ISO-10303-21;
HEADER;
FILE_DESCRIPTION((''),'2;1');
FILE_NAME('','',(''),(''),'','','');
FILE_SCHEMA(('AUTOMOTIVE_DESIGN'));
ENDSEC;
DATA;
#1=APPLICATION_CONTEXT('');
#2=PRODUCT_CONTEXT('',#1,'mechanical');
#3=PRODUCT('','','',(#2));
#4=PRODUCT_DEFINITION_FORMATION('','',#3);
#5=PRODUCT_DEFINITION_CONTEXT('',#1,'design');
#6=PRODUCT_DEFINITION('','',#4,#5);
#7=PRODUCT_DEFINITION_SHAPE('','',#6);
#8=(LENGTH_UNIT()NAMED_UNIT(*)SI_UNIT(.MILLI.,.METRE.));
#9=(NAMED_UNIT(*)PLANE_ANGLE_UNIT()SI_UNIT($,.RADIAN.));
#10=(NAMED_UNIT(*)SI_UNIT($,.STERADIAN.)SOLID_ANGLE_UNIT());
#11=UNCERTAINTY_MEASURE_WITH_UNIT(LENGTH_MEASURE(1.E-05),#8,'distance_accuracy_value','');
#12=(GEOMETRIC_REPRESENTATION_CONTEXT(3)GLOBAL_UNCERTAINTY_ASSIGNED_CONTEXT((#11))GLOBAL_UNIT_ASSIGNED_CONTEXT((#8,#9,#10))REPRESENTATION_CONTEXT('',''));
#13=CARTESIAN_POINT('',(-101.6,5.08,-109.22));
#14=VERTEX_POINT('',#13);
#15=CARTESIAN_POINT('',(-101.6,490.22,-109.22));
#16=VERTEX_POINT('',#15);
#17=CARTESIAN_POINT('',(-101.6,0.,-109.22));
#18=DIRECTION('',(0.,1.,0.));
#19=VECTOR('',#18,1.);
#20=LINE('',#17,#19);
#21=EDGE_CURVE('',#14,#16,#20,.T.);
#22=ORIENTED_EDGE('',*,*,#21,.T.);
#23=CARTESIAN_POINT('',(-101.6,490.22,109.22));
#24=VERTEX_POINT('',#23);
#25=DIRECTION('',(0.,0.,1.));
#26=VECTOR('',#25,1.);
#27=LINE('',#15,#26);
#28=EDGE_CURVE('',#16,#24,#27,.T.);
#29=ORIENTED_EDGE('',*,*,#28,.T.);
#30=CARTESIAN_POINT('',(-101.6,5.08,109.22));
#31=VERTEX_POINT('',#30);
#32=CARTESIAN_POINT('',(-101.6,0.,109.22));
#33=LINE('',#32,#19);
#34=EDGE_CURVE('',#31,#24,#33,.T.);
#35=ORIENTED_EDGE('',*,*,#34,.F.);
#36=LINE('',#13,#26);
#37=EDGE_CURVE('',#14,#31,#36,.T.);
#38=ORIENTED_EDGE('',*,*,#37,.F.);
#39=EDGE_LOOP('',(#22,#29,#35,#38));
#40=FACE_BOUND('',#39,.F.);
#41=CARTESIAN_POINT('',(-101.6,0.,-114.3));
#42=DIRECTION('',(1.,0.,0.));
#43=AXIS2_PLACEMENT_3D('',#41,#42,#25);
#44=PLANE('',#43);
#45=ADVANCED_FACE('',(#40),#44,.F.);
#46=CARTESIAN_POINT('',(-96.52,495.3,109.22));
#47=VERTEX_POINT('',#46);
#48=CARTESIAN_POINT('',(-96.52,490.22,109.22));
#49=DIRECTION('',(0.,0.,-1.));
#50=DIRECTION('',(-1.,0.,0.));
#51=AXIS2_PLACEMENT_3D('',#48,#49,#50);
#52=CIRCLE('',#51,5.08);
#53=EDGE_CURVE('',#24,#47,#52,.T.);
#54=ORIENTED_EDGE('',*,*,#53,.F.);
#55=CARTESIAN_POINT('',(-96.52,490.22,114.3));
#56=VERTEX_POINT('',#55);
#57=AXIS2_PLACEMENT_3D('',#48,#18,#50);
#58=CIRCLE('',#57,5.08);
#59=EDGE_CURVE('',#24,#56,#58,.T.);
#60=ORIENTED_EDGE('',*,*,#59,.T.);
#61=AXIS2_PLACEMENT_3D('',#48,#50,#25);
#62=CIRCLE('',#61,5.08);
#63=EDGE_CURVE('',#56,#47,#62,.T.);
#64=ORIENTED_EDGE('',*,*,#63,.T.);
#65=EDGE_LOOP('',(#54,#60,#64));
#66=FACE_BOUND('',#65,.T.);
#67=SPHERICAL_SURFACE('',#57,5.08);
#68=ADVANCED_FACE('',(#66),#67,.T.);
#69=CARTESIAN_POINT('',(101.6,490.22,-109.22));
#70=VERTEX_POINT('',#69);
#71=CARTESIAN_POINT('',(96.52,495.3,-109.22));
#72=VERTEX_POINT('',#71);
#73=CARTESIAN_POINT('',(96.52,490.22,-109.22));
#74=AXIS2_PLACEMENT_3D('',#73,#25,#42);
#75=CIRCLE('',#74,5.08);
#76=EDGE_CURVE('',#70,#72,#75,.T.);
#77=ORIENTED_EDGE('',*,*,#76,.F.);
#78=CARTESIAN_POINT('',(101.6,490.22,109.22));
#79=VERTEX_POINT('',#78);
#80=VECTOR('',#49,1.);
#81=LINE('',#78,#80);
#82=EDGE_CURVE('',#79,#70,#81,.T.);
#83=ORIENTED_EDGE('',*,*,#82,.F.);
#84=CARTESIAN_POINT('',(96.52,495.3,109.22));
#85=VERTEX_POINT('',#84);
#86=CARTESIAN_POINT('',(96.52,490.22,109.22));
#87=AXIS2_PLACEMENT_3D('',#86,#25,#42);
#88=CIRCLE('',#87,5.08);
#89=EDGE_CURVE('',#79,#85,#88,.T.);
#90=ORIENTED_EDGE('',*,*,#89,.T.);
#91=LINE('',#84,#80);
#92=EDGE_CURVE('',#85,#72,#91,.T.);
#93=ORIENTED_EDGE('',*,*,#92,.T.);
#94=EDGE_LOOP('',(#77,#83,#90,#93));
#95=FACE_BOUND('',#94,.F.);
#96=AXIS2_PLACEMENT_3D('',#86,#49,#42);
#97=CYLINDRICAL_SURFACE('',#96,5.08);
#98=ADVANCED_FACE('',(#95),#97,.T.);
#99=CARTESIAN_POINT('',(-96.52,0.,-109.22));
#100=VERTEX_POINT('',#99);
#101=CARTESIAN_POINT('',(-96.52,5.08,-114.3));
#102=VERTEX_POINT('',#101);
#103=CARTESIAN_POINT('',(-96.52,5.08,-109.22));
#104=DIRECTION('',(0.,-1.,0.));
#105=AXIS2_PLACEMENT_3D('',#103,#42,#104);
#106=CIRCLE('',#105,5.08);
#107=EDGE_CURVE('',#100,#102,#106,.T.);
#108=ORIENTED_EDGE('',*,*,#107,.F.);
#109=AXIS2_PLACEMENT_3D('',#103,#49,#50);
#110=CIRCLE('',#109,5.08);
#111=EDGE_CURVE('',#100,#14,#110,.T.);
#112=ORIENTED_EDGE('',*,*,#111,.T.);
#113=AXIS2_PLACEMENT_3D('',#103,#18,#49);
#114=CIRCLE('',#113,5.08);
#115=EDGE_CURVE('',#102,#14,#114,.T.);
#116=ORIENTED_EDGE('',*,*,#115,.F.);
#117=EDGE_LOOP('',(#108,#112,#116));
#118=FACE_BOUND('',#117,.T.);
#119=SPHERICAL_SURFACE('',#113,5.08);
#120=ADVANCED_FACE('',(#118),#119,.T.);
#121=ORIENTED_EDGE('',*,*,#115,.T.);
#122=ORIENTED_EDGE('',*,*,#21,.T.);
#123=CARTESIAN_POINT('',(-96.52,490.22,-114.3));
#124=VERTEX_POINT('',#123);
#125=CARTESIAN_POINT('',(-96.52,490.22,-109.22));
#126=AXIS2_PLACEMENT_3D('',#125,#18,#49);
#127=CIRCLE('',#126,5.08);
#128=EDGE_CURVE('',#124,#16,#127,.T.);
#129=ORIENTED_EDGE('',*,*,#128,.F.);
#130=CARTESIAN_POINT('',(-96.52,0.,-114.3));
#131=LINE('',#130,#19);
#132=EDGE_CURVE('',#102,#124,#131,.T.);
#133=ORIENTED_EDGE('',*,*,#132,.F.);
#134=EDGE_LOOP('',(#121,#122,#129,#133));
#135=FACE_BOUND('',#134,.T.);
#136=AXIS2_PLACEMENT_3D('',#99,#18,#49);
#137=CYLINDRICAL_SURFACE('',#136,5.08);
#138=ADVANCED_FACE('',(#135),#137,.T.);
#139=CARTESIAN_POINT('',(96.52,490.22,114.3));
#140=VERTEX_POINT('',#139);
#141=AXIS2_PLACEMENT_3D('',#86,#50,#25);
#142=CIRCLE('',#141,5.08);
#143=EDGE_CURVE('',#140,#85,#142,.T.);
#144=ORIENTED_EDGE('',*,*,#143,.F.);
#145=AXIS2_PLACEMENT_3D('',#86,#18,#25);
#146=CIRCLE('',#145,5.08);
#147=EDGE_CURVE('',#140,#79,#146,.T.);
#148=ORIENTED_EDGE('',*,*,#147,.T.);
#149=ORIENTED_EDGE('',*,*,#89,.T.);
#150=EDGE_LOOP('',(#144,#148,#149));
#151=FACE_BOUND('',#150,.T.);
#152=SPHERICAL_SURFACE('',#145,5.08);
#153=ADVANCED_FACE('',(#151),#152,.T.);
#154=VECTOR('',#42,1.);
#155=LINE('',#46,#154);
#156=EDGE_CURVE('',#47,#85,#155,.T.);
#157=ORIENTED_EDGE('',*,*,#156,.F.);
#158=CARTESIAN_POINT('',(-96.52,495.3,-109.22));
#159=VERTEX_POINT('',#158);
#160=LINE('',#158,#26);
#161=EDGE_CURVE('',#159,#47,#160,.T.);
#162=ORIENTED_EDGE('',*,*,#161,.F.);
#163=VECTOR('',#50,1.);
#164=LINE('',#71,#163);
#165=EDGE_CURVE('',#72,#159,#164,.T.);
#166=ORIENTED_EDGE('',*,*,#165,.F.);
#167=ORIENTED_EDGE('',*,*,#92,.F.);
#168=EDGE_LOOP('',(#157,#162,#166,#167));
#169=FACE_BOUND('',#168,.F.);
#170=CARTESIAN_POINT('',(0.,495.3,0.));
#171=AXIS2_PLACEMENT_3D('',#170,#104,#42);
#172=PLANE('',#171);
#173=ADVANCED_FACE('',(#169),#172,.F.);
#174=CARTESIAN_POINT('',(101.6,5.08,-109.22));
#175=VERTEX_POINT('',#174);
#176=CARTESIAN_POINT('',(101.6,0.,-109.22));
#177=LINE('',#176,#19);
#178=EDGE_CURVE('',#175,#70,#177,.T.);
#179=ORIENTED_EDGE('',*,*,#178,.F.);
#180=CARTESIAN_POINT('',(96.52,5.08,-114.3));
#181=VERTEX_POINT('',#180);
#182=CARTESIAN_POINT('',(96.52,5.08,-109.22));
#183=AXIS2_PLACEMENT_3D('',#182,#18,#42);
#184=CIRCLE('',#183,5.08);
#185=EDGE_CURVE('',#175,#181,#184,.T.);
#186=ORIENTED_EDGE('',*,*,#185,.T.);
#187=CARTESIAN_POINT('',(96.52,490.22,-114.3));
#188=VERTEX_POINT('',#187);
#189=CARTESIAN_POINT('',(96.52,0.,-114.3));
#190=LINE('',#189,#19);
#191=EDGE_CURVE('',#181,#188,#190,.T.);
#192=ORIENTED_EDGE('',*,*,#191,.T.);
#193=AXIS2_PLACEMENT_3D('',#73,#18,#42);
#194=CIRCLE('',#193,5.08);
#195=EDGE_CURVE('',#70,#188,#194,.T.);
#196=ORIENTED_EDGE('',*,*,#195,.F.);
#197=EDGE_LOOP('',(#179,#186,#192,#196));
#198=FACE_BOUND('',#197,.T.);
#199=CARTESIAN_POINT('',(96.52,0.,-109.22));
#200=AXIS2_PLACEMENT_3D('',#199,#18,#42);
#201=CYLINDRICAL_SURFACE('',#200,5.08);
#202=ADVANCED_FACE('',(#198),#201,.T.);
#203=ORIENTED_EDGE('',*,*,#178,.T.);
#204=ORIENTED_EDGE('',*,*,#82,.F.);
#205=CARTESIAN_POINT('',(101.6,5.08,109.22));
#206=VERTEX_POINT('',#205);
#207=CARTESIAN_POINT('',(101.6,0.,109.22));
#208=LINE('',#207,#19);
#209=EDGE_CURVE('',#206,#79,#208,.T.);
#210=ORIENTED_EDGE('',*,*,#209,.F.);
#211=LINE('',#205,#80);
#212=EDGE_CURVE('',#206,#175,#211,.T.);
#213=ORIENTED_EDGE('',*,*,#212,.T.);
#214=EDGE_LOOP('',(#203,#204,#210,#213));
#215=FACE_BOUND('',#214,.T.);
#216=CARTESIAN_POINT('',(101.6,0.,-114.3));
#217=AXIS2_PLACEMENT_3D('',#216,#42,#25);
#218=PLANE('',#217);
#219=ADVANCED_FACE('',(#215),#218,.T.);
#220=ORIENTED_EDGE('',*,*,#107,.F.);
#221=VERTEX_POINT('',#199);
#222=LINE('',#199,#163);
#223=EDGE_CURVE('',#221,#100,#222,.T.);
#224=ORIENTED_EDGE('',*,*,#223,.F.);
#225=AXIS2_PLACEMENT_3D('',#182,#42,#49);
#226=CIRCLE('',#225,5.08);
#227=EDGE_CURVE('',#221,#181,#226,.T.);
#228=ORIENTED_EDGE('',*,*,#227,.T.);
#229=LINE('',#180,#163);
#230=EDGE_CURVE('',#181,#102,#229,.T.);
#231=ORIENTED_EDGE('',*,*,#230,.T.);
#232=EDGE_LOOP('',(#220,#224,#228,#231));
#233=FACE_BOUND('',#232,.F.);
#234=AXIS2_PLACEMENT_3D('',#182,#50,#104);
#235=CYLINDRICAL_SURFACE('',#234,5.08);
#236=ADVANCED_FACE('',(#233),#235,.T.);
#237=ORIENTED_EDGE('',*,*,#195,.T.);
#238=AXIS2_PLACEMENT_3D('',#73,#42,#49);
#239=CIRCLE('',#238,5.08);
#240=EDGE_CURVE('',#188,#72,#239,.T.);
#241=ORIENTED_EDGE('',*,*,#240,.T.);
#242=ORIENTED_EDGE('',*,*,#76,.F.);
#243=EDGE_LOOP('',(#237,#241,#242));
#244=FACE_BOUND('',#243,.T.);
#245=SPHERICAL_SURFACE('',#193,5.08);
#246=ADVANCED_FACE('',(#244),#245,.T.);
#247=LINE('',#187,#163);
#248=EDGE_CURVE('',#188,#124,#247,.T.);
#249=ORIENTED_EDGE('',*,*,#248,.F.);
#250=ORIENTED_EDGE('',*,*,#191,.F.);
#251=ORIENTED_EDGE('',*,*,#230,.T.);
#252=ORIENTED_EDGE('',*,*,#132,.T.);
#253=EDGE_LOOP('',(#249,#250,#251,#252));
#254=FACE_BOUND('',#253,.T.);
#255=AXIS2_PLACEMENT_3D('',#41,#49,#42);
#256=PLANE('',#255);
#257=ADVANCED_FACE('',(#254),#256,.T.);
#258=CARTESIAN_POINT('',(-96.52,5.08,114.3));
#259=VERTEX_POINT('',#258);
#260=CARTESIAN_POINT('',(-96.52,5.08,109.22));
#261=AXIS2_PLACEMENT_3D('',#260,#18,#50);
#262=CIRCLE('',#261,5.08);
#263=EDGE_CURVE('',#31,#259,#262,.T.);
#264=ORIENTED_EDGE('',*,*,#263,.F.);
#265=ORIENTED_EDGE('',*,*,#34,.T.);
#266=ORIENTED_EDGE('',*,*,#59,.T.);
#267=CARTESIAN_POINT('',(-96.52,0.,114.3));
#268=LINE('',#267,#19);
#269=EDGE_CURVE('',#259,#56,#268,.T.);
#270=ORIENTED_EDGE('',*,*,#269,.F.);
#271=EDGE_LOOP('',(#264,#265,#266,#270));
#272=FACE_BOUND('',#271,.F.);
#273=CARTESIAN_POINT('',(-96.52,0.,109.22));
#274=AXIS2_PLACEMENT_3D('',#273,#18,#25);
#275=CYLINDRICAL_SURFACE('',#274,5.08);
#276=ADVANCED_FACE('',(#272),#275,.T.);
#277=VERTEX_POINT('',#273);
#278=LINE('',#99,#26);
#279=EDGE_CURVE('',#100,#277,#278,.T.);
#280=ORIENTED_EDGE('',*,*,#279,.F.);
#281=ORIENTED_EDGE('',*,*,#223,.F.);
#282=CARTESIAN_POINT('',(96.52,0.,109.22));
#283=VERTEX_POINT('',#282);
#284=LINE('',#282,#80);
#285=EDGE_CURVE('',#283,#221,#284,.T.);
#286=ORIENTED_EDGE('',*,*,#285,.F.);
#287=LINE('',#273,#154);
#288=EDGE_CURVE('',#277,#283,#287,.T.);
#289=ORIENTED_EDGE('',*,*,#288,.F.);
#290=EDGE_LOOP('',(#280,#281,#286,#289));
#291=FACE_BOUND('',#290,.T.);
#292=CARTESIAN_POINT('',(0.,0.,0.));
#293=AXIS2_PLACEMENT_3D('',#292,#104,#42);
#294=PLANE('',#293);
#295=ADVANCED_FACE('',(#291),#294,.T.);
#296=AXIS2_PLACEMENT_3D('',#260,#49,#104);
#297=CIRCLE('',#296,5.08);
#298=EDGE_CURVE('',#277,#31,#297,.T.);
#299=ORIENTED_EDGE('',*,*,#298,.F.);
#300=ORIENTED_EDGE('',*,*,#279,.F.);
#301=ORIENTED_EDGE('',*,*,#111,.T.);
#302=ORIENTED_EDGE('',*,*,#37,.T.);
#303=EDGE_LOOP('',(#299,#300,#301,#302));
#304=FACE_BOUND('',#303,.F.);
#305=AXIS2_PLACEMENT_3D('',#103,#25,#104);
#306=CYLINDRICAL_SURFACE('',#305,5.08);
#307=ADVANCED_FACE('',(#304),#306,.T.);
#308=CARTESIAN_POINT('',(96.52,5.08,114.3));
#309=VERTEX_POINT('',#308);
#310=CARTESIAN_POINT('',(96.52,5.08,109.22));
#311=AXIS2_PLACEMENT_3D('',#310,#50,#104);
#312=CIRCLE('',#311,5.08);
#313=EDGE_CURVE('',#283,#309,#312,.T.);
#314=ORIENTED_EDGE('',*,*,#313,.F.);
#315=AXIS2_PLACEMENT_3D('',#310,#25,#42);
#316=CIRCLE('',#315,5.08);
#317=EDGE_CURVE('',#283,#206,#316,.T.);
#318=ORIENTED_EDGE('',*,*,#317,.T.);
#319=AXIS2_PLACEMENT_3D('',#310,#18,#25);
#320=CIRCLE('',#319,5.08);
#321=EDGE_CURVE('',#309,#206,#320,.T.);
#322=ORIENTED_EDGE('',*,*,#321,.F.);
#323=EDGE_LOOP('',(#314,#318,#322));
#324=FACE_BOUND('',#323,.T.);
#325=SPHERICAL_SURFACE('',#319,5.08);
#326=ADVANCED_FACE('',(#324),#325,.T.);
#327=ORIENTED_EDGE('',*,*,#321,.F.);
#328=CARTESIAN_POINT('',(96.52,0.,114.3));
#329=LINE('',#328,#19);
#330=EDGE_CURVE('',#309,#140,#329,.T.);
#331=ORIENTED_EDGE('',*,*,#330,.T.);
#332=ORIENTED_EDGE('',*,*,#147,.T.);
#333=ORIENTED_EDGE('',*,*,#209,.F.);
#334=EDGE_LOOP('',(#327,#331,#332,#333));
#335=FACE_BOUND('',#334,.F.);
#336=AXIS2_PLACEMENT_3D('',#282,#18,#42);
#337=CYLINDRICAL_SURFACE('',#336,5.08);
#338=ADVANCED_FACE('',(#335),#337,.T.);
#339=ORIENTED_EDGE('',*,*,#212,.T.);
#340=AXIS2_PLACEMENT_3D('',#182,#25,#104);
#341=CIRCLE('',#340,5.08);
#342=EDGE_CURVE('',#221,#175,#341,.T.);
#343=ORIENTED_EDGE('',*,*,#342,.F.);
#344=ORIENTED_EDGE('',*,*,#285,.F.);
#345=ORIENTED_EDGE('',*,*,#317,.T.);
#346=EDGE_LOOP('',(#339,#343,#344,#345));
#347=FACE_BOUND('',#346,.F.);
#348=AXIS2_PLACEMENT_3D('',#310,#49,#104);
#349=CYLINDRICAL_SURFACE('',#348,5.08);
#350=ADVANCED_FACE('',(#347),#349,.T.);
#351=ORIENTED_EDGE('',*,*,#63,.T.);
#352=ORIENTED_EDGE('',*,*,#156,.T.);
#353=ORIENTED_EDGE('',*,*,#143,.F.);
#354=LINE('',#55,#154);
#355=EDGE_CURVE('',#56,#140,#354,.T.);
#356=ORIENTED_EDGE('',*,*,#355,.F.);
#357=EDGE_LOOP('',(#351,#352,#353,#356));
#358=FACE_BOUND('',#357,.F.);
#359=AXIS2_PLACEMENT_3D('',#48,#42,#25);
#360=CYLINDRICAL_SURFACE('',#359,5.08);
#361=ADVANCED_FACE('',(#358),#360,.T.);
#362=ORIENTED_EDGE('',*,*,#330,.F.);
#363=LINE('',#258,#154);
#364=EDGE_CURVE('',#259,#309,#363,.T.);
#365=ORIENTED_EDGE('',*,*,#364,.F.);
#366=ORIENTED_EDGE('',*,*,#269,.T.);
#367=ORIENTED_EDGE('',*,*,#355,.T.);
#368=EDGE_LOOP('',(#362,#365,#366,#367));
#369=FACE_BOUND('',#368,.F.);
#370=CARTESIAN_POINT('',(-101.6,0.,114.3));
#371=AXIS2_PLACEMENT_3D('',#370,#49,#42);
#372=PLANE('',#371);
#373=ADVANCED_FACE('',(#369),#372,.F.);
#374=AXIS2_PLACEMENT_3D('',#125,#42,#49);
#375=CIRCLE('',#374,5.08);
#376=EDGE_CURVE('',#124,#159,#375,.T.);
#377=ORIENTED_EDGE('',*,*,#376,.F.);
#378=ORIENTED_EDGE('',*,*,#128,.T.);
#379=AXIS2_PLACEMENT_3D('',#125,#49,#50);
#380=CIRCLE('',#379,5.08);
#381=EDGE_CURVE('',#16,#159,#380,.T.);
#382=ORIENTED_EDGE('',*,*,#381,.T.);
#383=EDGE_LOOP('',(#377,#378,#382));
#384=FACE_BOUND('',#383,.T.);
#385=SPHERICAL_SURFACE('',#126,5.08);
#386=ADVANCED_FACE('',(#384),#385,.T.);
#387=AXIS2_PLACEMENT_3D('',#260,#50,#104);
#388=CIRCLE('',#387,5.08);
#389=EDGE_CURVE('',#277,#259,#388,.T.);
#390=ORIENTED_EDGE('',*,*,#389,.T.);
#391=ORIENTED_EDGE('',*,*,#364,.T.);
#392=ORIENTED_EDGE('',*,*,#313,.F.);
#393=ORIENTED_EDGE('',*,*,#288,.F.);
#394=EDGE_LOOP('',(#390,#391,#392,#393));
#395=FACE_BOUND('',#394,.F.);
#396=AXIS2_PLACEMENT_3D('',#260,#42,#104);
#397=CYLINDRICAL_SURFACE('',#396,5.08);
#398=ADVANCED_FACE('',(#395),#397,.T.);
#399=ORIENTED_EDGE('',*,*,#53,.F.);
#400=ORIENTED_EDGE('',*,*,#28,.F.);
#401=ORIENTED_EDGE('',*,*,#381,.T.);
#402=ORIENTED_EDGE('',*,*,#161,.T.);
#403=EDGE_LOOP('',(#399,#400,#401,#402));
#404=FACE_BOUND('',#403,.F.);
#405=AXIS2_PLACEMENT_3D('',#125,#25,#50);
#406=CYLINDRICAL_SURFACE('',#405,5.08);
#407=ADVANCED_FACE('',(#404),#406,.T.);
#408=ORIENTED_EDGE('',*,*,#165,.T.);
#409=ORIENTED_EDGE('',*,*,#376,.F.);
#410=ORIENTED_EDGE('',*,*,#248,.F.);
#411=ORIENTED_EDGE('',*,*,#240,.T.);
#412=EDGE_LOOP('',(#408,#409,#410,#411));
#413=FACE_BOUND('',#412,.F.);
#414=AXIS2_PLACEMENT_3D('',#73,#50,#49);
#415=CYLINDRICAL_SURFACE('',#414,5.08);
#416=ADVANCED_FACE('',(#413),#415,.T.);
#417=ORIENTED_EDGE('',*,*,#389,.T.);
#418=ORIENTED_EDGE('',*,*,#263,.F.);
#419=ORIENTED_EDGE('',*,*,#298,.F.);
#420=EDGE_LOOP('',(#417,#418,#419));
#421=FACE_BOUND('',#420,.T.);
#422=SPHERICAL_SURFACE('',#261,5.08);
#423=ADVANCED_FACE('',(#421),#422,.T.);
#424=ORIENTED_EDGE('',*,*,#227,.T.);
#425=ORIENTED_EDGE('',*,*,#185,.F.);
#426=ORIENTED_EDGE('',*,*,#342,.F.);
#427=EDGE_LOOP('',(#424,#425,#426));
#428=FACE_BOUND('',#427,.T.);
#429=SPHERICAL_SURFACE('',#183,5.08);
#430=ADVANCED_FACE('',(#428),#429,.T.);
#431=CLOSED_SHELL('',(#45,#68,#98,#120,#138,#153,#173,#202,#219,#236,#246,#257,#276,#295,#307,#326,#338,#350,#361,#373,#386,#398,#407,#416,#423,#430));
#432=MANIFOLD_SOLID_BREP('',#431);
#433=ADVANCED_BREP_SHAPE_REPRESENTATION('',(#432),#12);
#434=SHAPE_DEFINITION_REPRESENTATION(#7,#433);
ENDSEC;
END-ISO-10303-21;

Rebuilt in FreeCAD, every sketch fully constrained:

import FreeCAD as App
import Part
import Sketcher

V = App.Vector
Q = App.Units.Quantity


def edges_at(feature, points):
    """Names of the edges that pass closest to the given points."""
    edges = feature.Shape.Edges
    near = lambda p: min(range(len(edges)), key=lambda i: edges[i].distToShape(Part.Vertex(*p))[0])
    return sorted({f"Edge{near(p) + 1}" for p in points})


def add_polygon(sketch, points):
    """Adds a closed chain of lines whose ends are joined by coincident constraints."""
    first, n = sketch.GeometryCount, len(points)
    for a, b in zip(points, points[1:] + points[:1]):
        sketch.addGeometry(Part.LineSegment(App.Vector(*a, 0), App.Vector(*b, 0)), False)
    for i in range(n):
        sketch.addConstraint(Sketcher.Constraint("Coincident", first + i, 2, first + (i + 1) % n, 1))

doc = App.newDocument("Part")
body = doc.addObject("PartDesign::Body", "Body")

sketch1 = body.newObject("Sketcher::SketchObject", "Sketch")
sketch1.AttachmentSupport = (doc.getObject("XZ_Plane"), [""])
sketch1.MapMode = "FlatFace"
add_polygon(sketch1, [(-102, 114), (-102, -114), (102, -114), (102, 114)])
sketch1.addConstraint(Sketcher.Constraint("Vertical", 0))
sketch1.addConstraint(Sketcher.Constraint("Horizontal", 1))
sketch1.addConstraint(Sketcher.Constraint("Vertical", 2))
sketch1.addConstraint(Sketcher.Constraint("Horizontal", 3))
sketch1.addConstraint(Sketcher.Constraint("Symmetric", 0, 2, 2, 2, -1, 1))
sketch1.addConstraint(Sketcher.Constraint("DistanceX", 1, 1, 1, 2, Q("8 in")))
sketch1.addConstraint(Sketcher.Constraint("DistanceY", 0, 2, 0, 1, Q("9 in")))
pad1 = body.newObject("PartDesign::Pad", "Pad")
pad1.Profile = sketch1
pad1.Length = Q("19.5 in")
pad1.Reversed = True
doc.recompute()

fillet = body.newObject("PartDesign::Fillet", "Fillet")
fillet.Base = (pad1, edges_at(pad1, [(101.6, 247.65, 114.3)]))
fillet.Radius = Q("0.2 in")
doc.recompute()

fillet2 = body.newObject("PartDesign::Fillet", "Fillet001")
fillet2.Base = (fillet, edges_at(fillet, [(-101.6, 247.65, 114.3)]))
fillet2.Radius = Q("0.2 in")
doc.recompute()

fillet3 = body.newObject("PartDesign::Fillet", "Fillet002")
fillet3.Base = (fillet2, edges_at(fillet2, [(101.6, 247.65, -114.3)]))
fillet3.Radius = Q("0.2 in")
doc.recompute()

fillet4 = body.newObject("PartDesign::Fillet", "Fillet003")
fillet4.Base = (fillet3, edges_at(fillet3, [(-101.6, 247.65, -114.3)]))
fillet4.Radius = Q("0.2 in")
doc.recompute()

fillet5 = body.newObject("PartDesign::Fillet", "Fillet004")
fillet5.Base = (fillet4, edges_at(fillet4, [(0, 0, 114.3)]))
fillet5.Radius = Q("0.2 in")
doc.recompute()

fillet6 = body.newObject("PartDesign::Fillet", "Fillet005")
fillet6.Base = (fillet5, edges_at(fillet5, [(0, 495.3, 114.3)]))
fillet6.Radius = Q("0.2 in")

doc.recompute()
